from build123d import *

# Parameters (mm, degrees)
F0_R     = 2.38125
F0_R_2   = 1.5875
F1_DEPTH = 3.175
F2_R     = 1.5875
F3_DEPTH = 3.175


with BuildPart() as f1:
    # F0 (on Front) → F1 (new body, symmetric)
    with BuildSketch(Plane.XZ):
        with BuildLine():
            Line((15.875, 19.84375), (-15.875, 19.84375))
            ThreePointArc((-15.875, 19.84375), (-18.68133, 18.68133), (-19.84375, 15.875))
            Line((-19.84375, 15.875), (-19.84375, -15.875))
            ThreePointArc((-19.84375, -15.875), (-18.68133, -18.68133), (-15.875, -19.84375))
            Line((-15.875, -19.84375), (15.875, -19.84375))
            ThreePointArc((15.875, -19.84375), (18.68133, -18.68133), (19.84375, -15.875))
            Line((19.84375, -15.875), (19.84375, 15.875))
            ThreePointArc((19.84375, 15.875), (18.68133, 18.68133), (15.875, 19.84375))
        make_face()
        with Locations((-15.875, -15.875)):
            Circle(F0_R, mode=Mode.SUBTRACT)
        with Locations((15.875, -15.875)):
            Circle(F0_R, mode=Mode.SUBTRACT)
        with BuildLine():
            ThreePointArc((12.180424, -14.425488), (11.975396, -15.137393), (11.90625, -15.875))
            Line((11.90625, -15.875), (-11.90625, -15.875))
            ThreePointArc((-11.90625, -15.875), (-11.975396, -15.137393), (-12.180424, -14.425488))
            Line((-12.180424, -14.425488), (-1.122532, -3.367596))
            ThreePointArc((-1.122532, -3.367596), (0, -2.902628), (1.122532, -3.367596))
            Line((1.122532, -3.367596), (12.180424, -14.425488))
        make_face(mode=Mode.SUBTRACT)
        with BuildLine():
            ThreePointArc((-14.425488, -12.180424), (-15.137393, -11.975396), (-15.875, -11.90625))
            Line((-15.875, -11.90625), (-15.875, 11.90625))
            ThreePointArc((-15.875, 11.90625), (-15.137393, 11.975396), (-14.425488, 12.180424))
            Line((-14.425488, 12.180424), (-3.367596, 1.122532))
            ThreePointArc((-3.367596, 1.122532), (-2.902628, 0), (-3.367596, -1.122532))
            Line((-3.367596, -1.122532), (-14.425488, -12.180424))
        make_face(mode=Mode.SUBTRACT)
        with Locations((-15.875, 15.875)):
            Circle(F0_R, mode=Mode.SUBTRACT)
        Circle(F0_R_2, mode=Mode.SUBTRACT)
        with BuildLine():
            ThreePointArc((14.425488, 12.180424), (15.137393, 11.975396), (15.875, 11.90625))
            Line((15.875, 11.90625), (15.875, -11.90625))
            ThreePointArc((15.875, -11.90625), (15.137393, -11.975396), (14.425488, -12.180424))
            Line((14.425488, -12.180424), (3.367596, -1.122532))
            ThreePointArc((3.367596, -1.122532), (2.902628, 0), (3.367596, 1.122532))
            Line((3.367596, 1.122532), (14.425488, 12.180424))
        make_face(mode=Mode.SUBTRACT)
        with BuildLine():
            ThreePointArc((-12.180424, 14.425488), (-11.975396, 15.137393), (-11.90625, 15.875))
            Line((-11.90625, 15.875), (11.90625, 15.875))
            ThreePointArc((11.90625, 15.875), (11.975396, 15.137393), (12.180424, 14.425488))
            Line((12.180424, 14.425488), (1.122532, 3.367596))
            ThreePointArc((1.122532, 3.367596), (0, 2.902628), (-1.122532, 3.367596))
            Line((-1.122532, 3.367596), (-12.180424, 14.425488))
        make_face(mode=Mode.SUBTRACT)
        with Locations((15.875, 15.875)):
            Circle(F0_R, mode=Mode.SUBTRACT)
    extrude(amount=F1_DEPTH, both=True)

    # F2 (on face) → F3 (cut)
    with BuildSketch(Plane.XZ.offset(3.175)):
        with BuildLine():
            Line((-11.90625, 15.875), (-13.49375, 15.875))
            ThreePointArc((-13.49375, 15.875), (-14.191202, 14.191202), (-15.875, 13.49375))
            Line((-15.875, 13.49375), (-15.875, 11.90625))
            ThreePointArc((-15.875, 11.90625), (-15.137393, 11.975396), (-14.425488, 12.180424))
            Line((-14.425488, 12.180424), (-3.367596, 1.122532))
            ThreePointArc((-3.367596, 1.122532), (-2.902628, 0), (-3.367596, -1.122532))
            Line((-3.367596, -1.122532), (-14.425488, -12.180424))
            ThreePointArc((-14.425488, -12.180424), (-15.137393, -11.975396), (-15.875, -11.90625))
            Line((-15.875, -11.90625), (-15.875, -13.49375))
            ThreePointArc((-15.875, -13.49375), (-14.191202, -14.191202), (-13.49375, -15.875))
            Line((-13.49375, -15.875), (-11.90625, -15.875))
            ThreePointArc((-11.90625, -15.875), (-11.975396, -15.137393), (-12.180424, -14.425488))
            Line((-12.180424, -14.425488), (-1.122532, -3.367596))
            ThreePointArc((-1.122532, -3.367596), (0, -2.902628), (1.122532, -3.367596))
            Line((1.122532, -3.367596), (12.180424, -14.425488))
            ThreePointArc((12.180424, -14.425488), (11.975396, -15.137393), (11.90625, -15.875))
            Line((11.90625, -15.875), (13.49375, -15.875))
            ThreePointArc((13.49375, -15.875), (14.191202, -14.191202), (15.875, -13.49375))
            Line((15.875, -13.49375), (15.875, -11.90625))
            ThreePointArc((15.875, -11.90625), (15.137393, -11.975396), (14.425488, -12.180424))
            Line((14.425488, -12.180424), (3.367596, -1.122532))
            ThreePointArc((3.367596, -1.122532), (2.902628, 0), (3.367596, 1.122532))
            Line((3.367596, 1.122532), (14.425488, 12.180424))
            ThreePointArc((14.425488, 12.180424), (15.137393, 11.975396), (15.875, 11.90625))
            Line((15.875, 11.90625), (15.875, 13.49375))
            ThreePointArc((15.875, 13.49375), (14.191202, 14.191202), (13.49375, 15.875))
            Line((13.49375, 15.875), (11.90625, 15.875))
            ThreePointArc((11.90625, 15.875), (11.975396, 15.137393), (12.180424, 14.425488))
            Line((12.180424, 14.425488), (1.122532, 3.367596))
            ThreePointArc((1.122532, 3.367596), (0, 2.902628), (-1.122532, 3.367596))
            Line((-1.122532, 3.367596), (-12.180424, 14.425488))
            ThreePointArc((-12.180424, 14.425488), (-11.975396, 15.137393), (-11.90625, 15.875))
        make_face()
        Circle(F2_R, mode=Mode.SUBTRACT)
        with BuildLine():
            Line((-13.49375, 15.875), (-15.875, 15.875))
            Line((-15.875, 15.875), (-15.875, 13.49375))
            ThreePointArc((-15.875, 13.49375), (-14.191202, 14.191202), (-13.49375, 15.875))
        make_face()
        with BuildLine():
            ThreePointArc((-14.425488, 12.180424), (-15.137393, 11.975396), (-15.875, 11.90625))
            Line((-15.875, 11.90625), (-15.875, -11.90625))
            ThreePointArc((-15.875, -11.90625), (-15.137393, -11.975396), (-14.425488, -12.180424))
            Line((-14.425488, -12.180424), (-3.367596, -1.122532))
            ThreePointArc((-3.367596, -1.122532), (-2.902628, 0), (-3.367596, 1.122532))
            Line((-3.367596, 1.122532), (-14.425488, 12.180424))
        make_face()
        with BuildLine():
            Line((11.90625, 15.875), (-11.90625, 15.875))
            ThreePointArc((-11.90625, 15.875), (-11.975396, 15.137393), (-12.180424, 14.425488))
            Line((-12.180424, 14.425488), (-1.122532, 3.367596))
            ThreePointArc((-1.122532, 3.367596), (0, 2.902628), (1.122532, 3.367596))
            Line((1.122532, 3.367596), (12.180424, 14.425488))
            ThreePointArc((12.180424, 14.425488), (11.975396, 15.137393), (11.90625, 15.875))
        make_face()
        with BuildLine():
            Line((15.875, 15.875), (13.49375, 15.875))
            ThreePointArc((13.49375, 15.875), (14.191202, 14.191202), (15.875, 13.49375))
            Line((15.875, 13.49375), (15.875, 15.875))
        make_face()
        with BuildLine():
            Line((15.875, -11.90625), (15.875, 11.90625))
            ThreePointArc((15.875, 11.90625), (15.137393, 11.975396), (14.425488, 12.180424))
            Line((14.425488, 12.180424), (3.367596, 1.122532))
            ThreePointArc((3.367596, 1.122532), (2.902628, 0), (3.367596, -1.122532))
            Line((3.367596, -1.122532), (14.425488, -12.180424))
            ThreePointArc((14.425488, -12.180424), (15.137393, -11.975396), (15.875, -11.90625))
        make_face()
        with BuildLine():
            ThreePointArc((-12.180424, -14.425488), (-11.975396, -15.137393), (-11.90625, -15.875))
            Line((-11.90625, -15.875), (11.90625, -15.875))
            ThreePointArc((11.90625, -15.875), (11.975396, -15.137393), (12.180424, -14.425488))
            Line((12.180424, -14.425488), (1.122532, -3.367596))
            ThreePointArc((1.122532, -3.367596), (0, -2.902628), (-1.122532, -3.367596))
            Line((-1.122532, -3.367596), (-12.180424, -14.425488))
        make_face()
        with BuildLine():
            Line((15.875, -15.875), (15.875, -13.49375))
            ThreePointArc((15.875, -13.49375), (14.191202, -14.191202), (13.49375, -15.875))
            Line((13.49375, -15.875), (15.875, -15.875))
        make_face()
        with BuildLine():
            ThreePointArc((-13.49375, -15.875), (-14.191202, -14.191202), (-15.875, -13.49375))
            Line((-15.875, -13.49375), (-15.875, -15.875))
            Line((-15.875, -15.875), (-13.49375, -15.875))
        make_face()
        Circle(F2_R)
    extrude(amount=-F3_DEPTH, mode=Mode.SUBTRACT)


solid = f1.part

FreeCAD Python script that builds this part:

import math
import FreeCAD as App
import Part
import Sketcher
Q = App.Units.Quantity

doc = App.newDocument("Part")
body = doc.addObject("PartDesign::Body", "Body")

sketch1 = body.newObject("Sketcher::SketchObject", "Sketch")
sketch1.AttachmentSupport = (doc.getObject("XZ_Plane"), [""])
sketch1.MapMode = "FlatFace"
sketch1.addGeometry(Part.LineSegment(App.Vector(15.9, 19.8, 0), App.Vector(-15.9, 19.8, 0)), False)
sketch1.addGeometry(Part.ArcOfCircle(Part.Circle(App.Vector(-15.9, 15.9, 0), App.Vector(0, 0, 1), 4), math.radians(90), math.radians(180)), False)
sketch1.addGeometry(Part.LineSegment(App.Vector(-19.8, 15.9, 0), App.Vector(-19.8, -15.9, 0)), False)
sketch1.addGeometry(Part.ArcOfCircle(Part.Circle(App.Vector(-15.9, -15.9, 0), App.Vector(0, 0, 1), 4), math.radians(-180), math.radians(-90)), False)
sketch1.addGeometry(Part.LineSegment(App.Vector(-15.9, -19.8, 0), App.Vector(15.9, -19.8, 0)), False)
sketch1.addGeometry(Part.ArcOfCircle(Part.Circle(App.Vector(15.9, -15.9, 0), App.Vector(0, 0, 1), 4), math.radians(-90), math.radians(0)), False)
sketch1.addGeometry(Part.LineSegment(App.Vector(19.8, -15.9, 0), App.Vector(19.8, 15.9, 0)), False)
sketch1.addGeometry(Part.ArcOfCircle(Part.Circle(App.Vector(15.9, 15.9, 0), App.Vector(0, 0, 1), 4), math.radians(0), math.radians(90)), False)
sketch1.addGeometry(Part.Circle(App.Vector(-15.9, -15.9, 0), App.Vector(0, 0, 1), 2.4), False)
sketch1.addGeometry(Part.LineSegment(App.Vector(1.1, -3.4, 0), App.Vector(12.2, -14.4, 0)), False)
sketch1.addGeometry(Part.ArcOfCircle(Part.Circle(App.Vector(15.9, -15.9, 0), App.Vector(0, 0, 1), 4), math.radians(159), math.radians(180)), False)
sketch1.addGeometry(Part.LineSegment(App.Vector(11.9, -15.9, 0), App.Vector(-11.9, -15.9, 0)), False)
sketch1.addGeometry(Part.ArcOfCircle(Part.Circle(App.Vector(-15.9, -15.9, 0), App.Vector(0, 0, 1), 4), math.radians(0), math.radians(21)), False)
sketch1.addGeometry(Part.LineSegment(App.Vector(-12.2, -14.4, 0), App.Vector(-1.1, -3.4, 0)), False)
sketch1.addGeometry(Part.ArcOfCircle(Part.Circle(App.Vector(0, -4.5, 0), App.Vector(0, 0, 1), 1.6), math.radians(45), math.radians(135)), False)
sketch1.addGeometry(Part.Circle(App.Vector(15.9, -15.9, 0), App.Vector(0, 0, 1), 2.4), False)
sketch1.addGeometry(Part.LineSegment(App.Vector(-3.4, -1.1, 0), App.Vector(-14.4, -12.2, 0)), False)
sketch1.addGeometry(Part.ArcOfCircle(Part.Circle(App.Vector(-15.9, -15.9, 0), App.Vector(0, 0, 1), 4), math.radians(69), math.radians(90)), False)
sketch1.addGeometry(Part.LineSegment(App.Vector(-15.9, -11.9, 0), App.Vector(-15.9, 11.9, 0)), False)
sketch1.addGeometry(Part.ArcOfCircle(Part.Circle(App.Vector(-15.9, 15.9, 0), App.Vector(0, 0, 1), 4), math.radians(-90), math.radians(-69)), False)
sketch1.addGeometry(Part.LineSegment(App.Vector(-14.4, 12.2, 0), App.Vector(-3.4, 1.1, 0)), False)
sketch1.addGeometry(Part.ArcOfCircle(Part.Circle(App.Vector(-4.5, 0, 0), App.Vector(0, 0, 1), 1.6), math.radians(-45), math.radians(45)), False)
sketch1.addGeometry(Part.Circle(App.Vector(-15.9, 15.9, 0), App.Vector(0, 0, 1), 2.4), False)
sketch1.addGeometry(Part.Circle(App.Vector(0, 0, 0), App.Vector(0, 0, 1), 1.6), False)
sketch1.addGeometry(Part.LineSegment(App.Vector(3.4, 1.1, 0), App.Vector(14.4, 12.2, 0)), False)
sketch1.addGeometry(Part.ArcOfCircle(Part.Circle(App.Vector(15.9, 15.9, 0), App.Vector(0, 0, 1), 4), math.radians(-111), math.radians(-90)), False)
sketch1.addGeometry(Part.LineSegment(App.Vector(15.9, 11.9, 0), App.Vector(15.9, -11.9, 0)), False)
sketch1.addGeometry(Part.ArcOfCircle(Part.Circle(App.Vector(15.9, -15.9, 0), App.Vector(0, 0, 1), 4), math.radians(90), math.radians(111)), False)
sketch1.addGeometry(Part.LineSegment(App.Vector(14.4, -12.2, 0), App.Vector(3.4, -1.1, 0)), False)
sketch1.addGeometry(Part.ArcOfCircle(Part.Circle(App.Vector(4.5, 0, 0), App.Vector(0, 0, 1), 1.6), math.radians(135), math.radians(225)), False)
sketch1.addGeometry(Part.LineSegment(App.Vector(-1.1, 3.4, 0), App.Vector(-12.2, 14.4, 0)), False)
sketch1.addGeometry(Part.ArcOfCircle(Part.Circle(App.Vector(-15.9, 15.9, 0), App.Vector(0, 0, 1), 4), math.radians(-21), math.radians(0)), False)
sketch1.addGeometry(Part.LineSegment(App.Vector(-11.9, 15.9, 0), App.Vector(11.9, 15.9, 0)), False)
sketch1.addGeometry(Part.ArcOfCircle(Part.Circle(App.Vector(15.9, 15.9, 0), App.Vector(0, 0, 1), 4), math.radians(-180), math.radians(-159)), False)
sketch1.addGeometry(Part.LineSegment(App.Vector(12.2, 14.4, 0), App.Vector(1.1, 3.4, 0)), False)
sketch1.addGeometry(Part.ArcOfCircle(Part.Circle(App.Vector(0, 4.5, 0), App.Vector(0, 0, 1), 1.6), math.radians(-135), math.radians(-45)), False)
sketch1.addGeometry(Part.Circle(App.Vector(15.9, 15.9, 0), App.Vector(0, 0, 1), 2.4), False)
sketch1.addConstraint(Sketcher.Constraint("Tangent", 0, 2, 1, 1))
sketch1.addConstraint(Sketcher.Constraint("Tangent", 1, 2, 2, 1))
sketch1.addConstraint(Sketcher.Constraint("Tangent", 2, 2, 3, 1))
sketch1.addConstraint(Sketcher.Constraint("Tangent", 3, 2, 4, 1))
sketch1.addConstraint(Sketcher.Constraint("Tangent", 4, 2, 5, 1))
sketch1.addConstraint(Sketcher.Constraint("Tangent", 5, 2, 6, 1))
sketch1.addConstraint(Sketcher.Constraint("Tangent", 6, 2, 7, 1))
sketch1.addConstraint(Sketcher.Constraint("Tangent", 7, 2, 0, 1))
sketch1.addConstraint(Sketcher.Constraint("Coincident", 9, 2, 10, 1))
sketch1.addConstraint(Sketcher.Constraint("Coincident", 10, 2, 11, 1))
sketch1.addConstraint(Sketcher.Constraint("Coincident", 11, 2, 12, 1))
sketch1.addConstraint(Sketcher.Constraint("Coincident", 12, 2, 13, 1))
sketch1.addConstraint(Sketcher.Constraint("Tangent", 13, 2, 14, 2))
sketch1.addConstraint(Sketcher.Constraint("Tangent", 14, 1, 9, 1))
sketch1.addConstraint(Sketcher.Constraint("Coincident", 16, 2, 17, 1))
sketch1.addConstraint(Sketcher.Constraint("Coincident", 17, 2, 18, 1))
sketch1.addConstraint(Sketcher.Constraint("Coincident", 18, 2, 19, 1))
sketch1.addConstraint(Sketcher.Constraint("Coincident", 19, 2, 20, 1))
sketch1.addConstraint(Sketcher.Constraint("Tangent", 20, 2, 21, 2))
sketch1.addConstraint(Sketcher.Constraint("Tangent", 21, 1, 16, 1))
sketch1.addConstraint(Sketcher.Constraint("Coincident", 24, 2, 25, 1))
sketch1.addConstraint(Sketcher.Constraint("Coincident", 25, 2, 26, 1))
sketch1.addConstraint(Sketcher.Constraint("Coincident", 26, 2, 27, 1))
sketch1.addConstraint(Sketcher.Constraint("Coincident", 27, 2, 28, 1))
sketch1.addConstraint(Sketcher.Constraint("Tangent", 28, 2, 29, 2))
sketch1.addConstraint(Sketcher.Constraint("Tangent", 29, 1, 24, 1))
sketch1.addConstraint(Sketcher.Constraint("Coincident", 30, 2, 31, 1))
sketch1.addConstraint(Sketcher.Constraint("Coincident", 31, 2, 32, 1))
sketch1.addConstraint(Sketcher.Constraint("Coincident", 32, 2, 33, 1))
sketch1.addConstraint(Sketcher.Constraint("Coincident", 33, 2, 34, 1))
sketch1.addConstraint(Sketcher.Constraint("Tangent", 34, 2, 35, 2))
sketch1.addConstraint(Sketcher.Constraint("Tangent", 35, 1, 30, 1))
sketch1.addConstraint(Sketcher.Constraint("Horizontal", 0))
sketch1.addConstraint(Sketcher.Constraint("Vertical", 2))
sketch1.addConstraint(Sketcher.Constraint("Horizontal", 4))
sketch1.addConstraint(Sketcher.Constraint("Vertical", 6))
sketch1.addConstraint(Sketcher.Constraint("Horizontal", 11))
sketch1.addConstraint(Sketcher.Constraint("Vertical", 18))
sketch1.addConstraint(Sketcher.Constraint("Vertical", 26))
sketch1.addConstraint(Sketcher.Constraint("Horizontal", 32))
sketch1.addConstraint(Sketcher.Constraint("Coincident", 23, 3, -1, 1))
sketch1.addConstraint(Sketcher.Constraint("Coincident", 8, 3, 3, 3))
sketch1.addConstraint(Sketcher.Constraint("Coincident", 10, 3, 5, 3))
sketch1.addConstraint(Sketcher.Constraint("Coincident", 12, 3, 3, 3))
sketch1.addConstraint(Sketcher.Constraint("Coincident", 15, 3, 5, 3))
sketch1.addConstraint(Sketcher.Constraint("Coincident", 17, 3, 3, 3))
sketch1.addConstraint(Sketcher.Constraint("Coincident", 19, 3, 1, 3))
sketch1.addConstraint(Sketcher.Constraint("Coincident", 22, 3, 1, 3))
sketch1.addConstraint(Sketcher.Constraint("Coincident", 25, 3, 7, 3))
sketch1.addConstraint(Sketcher.Constraint("Coincident", 27, 3, 5, 3))
sketch1.addConstraint(Sketcher.Constraint("Coincident", 31, 3, 1, 3))
sketch1.addConstraint(Sketcher.Constraint("Coincident", 33, 3, 7, 3))
sketch1.addConstraint(Sketcher.Constraint("Coincident", 36, 3, 7, 3))
sketch1.addConstraint(Sketcher.Constraint("Equal", 1, 3))
sketch1.addConstraint(Sketcher.Constraint("Equal", 3, 5))
sketch1.addConstraint(Sketcher.Constraint("Equal", 5, 7))
sketch1.addConstraint(Sketcher.Constraint("Equal", 10, 12))
sketch1.addConstraint(Sketcher.Constraint("Equal", 8, 15))
sketch1.addConstraint(Sketcher.Constraint("Equal", 12, 17))
sketch1.addConstraint(Sketcher.Constraint("Equal", 17, 19))
sketch1.addConstraint(Sketcher.Constraint("Equal", 14, 21))
sketch1.addConstraint(Sketcher.Constraint("Equal", 15, 22))
sketch1.addConstraint(Sketcher.Constraint("Equal", 21, 23))
sketch1.addConstraint(Sketcher.Constraint("Equal", 19, 25))
sketch1.addConstraint(Sketcher.Constraint("Equal", 25, 27))
sketch1.addConstraint(Sketcher.Constraint("Equal", 23, 29))
sketch1.addConstraint(Sketcher.Constraint("Equal", 27, 31))
sketch1.addConstraint(Sketcher.Constraint("Equal", 31, 33))
sketch1.addConstraint(Sketcher.Constraint("Equal", 29, 35))
sketch1.addConstraint(Sketcher.Constraint("Equal", 22, 36))
sketch1.addConstraint(Sketcher.Constraint("Symmetric", 1, 3, 5, 3, -1, 1))
sketch1.addConstraint(Sketcher.Constraint("Symmetric", 21, 3, 29, 3, -1, 1))
sketch1.addConstraint(Sketcher.Constraint("Symmetric", 14, 3, 35, 3, -1, 1))
sketch1.addConstraint(Sketcher.Constraint("Symmetric", 13, 2, 14, 1, -2))
sketch1.addConstraint(Sketcher.Constraint("Symmetric", 21, 1, 28, 2, -2))
sketch1.addConstraint(Sketcher.Constraint("Perpendicular", 9, 13))
sketch1.addConstraint(Sketcher.Constraint("Parallel", 13, 16))
sketch1.addConstraint(Sketcher.Constraint("Perpendicular", 16, 20))
sketch1.addConstraint(Sketcher.Constraint("Perpendicular", 20, 24))
sketch1.addConstraint(Sketcher.Constraint("Parallel", 28, 30))
sketch1.addConstraint(Sketcher.Constraint("Perpendicular", 30, 34))
sketch1.addConstraint(Sketcher.Constraint("Horizontal", 5, 2, 10, 2))
sketch1.addConstraint(Sketcher.Constraint("Horizontal", 6, 2, 31, 2))
sketch1.addConstraint(Sketcher.Constraint("Vertical", 3, 2, 17, 2))
sketch1.addConstraint(Sketcher.Constraint("Vertical", 7, 2, 25, 2))
sketch1.addConstraint(Sketcher.Constraint("Equal", 4, 2))
sketch1.addConstraint(Sketcher.Constraint("Equal", 13, 16))
sketch1.addConstraint(Sketcher.Constraint("Diameter", 8, Q("0.1875 in")))
sketch1.addConstraint(Sketcher.Constraint("Diameter", 23, Q("0.125 in")))
sketch1.addConstraint(Sketcher.Constraint("Radius", 1, Q("0.15625 in")))
sketch1.addConstraint(Sketcher.Constraint("DistanceX", 0, 2, 0, 1, Q("1.25 in")))
sketch1.addConstraint(Sketcher.Constraint("DistanceX", 11, 2, 11, 1, Q("0.9375 in")))
sketch1.addConstraint(Sketcher.Constraint("Distance", 9, Q("15.638221 mm")))
pad1 = body.newObject("PartDesign::Pad", "Pad")
pad1.Profile = sketch1
pad1.Length = Q("0.25 in")
pad1.Midplane = True

sketch2 = body.newObject("Sketcher::SketchObject", "Sketch001")
sketch2.AttachmentSupport = (doc.getObject("XZ_Plane"), [""])
sketch2.MapMode = "FlatFace"
sketch2.AttachmentOffset = App.Placement(App.Vector(0, 0, 0.125 * 25.4), App.Rotation())
sketch2.addGeometry(Part.LineSegment(App.Vector(-16, 16, 0), App.Vector(-16, -16, 0)), False)
sketch2.addGeometry(Part.LineSegment(App.Vector(-16, -16, 0), App.Vector(16, -16, 0)), False)
sketch2.addGeometry(Part.LineSegment(App.Vector(16, -16, 0), App.Vector(16, 16, 0)), False)
sketch2.addGeometry(Part.LineSegment(App.Vector(16, 16, 0), App.Vector(-16, 16, 0)), False)
sketch2.addConstraint(Sketcher.Constraint("Coincident", 0, 2, 1, 1))
sketch2.addConstraint(Sketcher.Constraint("Coincident", 1, 2, 2, 1))
sketch2.addConstraint(Sketcher.Constraint("Coincident", 2, 2, 3, 1))
sketch2.addConstraint(Sketcher.Constraint("Coincident", 3, 2, 0, 1))
sketch2.addConstraint(Sketcher.Constraint("Vertical", 0))
sketch2.addConstraint(Sketcher.Constraint("Horizontal", 1))
sketch2.addConstraint(Sketcher.Constraint("Vertical", 2))
sketch2.addConstraint(Sketcher.Constraint("Horizontal", 3))
sketch2.addConstraint(Sketcher.Constraint("Symmetric", 0, 2, 2, 2, -1, 1))
sketch2.addConstraint(Sketcher.Constraint("Equal", 3, 0))
sketch2.addConstraint(Sketcher.Constraint("DistanceX", 1, 1, 1, 2, Q("1.25 in")))
pocket1 = body.newObject("PartDesign::Pocket", "Pocket")
pocket1.Profile = sketch2
pocket1.Length = Q("0.125 in")

doc.recompute()
